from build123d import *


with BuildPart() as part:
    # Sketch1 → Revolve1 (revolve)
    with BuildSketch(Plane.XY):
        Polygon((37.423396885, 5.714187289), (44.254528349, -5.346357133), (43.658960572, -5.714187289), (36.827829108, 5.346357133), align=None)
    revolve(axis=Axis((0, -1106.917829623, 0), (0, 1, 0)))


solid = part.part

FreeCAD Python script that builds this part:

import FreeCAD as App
import Part
import Sketcher
from FreeCAD import Vector
Q = App.Units.Quantity

doc = App.newDocument("Part")
body = doc.addObject("PartDesign::Body", "Body")

# Sketch on XY plane
sketch1 = body.newObject("Sketcher::SketchObject", "Sketch")
sketch1.AttachmentSupport = (doc.getObject("XY_Plane"), [""])
sketch1.MapMode = "FlatFace"
sketch1.addGeometry([
    Part.LineSegment(Vector(44.3, -5.3, 0), Vector(37.4, 5.7, 0)),
    Part.LineSegment(Vector(37.4, 5.7, 0), Vector(36.8, 5.3, 0)),
    Part.LineSegment(Vector(36.8, 5.3, 0), Vector(43.7, -5.7, 0)),
    Part.LineSegment(Vector(43.7, -5.7, 0), Vector(44.3, -5.3, 0)),
], False)
sketch1.addConstraint([
    Sketcher.Constraint("Coincident", 0, 2, 1, 1),
    Sketcher.Constraint("Coincident", 1, 2, 2, 1),
    Sketcher.Constraint("Coincident", 2, 2, 3, 1),
    Sketcher.Constraint("Coincident", 3, 2, 0, 1),
    Sketcher.Constraint("Perpendicular", 0, 1),
    Sketcher.Constraint("Perpendicular", 1, 2),
    Sketcher.Constraint("Perpendicular", 2, 3),
    Sketcher.Constraint("Distance", 0, 13.0),
    Sketcher.Constraint("Angle", 0, Q("121.7 deg")),
    Sketcher.Constraint("Distance", 1, 0.7),
    Sketcher.Constraint("DistanceX", -1, 1, 1, 2, 36.827829),
    Sketcher.Constraint("DistanceY", -1, 1, 0, 2, 5.714187),
])
revolution = body.newObject("PartDesign::Revolution", "Revolution")
revolution.Profile = sketch1
revolution.ReferenceAxis = (sketch1, ["V_Axis"])
revolution.Angle = 360

doc.recompute()
